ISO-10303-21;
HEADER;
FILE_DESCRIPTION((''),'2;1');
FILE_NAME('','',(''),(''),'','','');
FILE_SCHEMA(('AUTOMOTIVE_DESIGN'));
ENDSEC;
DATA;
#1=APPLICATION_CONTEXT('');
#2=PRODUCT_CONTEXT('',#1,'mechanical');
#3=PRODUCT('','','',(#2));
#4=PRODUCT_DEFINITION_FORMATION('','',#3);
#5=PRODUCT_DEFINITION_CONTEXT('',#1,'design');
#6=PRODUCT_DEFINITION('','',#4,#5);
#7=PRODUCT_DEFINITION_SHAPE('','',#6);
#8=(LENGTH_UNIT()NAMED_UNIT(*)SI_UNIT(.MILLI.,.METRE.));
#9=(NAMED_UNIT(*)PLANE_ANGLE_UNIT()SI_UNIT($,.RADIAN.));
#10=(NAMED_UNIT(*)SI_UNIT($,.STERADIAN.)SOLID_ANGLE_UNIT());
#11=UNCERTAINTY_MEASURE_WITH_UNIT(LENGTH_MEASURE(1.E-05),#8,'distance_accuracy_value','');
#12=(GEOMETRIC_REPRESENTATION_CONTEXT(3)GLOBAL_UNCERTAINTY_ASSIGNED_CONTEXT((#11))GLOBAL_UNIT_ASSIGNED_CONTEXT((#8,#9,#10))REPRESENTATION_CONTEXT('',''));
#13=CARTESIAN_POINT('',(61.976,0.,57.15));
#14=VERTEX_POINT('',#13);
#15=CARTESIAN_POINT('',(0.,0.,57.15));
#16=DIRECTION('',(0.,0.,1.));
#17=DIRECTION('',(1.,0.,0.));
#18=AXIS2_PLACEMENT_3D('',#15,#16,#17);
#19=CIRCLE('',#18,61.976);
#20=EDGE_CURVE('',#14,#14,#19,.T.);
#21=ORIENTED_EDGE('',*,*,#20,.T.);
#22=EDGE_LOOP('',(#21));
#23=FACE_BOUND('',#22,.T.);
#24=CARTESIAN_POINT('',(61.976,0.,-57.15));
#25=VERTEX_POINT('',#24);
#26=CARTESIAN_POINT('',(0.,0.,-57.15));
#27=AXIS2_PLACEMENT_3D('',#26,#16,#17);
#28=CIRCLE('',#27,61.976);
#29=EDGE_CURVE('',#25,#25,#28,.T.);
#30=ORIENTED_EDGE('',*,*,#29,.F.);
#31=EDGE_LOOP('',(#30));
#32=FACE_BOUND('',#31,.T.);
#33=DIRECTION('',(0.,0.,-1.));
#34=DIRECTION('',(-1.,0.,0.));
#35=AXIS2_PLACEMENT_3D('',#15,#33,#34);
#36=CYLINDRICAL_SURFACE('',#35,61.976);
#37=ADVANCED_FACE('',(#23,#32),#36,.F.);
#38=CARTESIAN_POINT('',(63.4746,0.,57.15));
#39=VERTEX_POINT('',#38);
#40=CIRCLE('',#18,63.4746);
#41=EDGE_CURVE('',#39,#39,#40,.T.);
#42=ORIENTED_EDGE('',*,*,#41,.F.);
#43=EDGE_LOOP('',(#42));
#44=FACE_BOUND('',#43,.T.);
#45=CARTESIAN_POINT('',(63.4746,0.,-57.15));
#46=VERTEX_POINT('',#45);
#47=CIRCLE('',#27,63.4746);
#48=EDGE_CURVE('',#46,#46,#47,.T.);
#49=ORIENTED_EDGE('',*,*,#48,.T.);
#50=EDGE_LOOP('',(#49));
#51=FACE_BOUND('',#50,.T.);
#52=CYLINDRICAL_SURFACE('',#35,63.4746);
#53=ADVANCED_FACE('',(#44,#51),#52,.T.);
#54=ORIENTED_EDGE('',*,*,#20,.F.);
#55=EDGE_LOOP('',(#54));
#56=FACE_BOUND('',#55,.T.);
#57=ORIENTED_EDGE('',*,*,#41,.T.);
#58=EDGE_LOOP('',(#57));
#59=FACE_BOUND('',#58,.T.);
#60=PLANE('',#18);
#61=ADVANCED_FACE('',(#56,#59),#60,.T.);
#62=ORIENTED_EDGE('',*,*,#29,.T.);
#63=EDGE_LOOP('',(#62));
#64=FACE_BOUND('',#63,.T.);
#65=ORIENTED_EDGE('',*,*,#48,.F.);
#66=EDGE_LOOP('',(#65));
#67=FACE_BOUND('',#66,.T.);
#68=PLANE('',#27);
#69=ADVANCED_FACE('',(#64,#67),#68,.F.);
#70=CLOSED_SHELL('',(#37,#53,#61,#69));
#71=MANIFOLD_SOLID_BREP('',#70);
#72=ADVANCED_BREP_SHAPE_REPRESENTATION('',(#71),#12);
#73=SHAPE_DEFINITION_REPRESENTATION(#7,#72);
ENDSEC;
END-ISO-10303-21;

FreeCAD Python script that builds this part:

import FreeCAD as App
import Part
import Sketcher
Q = App.Units.Quantity

doc = App.newDocument("Part")
body = doc.addObject("PartDesign::Body", "Body")

# Sketch on XY plane
sketch1 = doc.addObject("Sketcher::SketchObject", "Sketch")
body.addObject(sketch1)
sketch1.AttachmentSupport = (doc.XY_Plane, [""])
sketch1.MapMode = "FlatFace"
sketch1.addGeometry(Part.Circle(App.Vector(0, 0, 0), App.Vector(0, 0, 1), 63), False)
sketch1.addGeometry(Part.Circle(App.Vector(0, 0, 0), App.Vector(0, 0, 1), 62), False)
sketch1.addConstraint(Sketcher.Constraint("Coincident", 0, 3, -1, 1))
sketch1.addConstraint(Sketcher.Constraint("Coincident", 1, 3, -1, 1))
sketch1.addConstraint(Sketcher.Constraint("Diameter", 1, Q("4.88 in")))
sketch1.addConstraint(Sketcher.Constraint("Diameter", 0, Q("4.998 in")))
pad1 = doc.addObject("PartDesign::Pad", "Pad")
body.addObject(pad1)
pad1.Profile = sketch1
pad1.Length = Q("4.5 in")
pad1.Midplane = True

doc.recompute()
